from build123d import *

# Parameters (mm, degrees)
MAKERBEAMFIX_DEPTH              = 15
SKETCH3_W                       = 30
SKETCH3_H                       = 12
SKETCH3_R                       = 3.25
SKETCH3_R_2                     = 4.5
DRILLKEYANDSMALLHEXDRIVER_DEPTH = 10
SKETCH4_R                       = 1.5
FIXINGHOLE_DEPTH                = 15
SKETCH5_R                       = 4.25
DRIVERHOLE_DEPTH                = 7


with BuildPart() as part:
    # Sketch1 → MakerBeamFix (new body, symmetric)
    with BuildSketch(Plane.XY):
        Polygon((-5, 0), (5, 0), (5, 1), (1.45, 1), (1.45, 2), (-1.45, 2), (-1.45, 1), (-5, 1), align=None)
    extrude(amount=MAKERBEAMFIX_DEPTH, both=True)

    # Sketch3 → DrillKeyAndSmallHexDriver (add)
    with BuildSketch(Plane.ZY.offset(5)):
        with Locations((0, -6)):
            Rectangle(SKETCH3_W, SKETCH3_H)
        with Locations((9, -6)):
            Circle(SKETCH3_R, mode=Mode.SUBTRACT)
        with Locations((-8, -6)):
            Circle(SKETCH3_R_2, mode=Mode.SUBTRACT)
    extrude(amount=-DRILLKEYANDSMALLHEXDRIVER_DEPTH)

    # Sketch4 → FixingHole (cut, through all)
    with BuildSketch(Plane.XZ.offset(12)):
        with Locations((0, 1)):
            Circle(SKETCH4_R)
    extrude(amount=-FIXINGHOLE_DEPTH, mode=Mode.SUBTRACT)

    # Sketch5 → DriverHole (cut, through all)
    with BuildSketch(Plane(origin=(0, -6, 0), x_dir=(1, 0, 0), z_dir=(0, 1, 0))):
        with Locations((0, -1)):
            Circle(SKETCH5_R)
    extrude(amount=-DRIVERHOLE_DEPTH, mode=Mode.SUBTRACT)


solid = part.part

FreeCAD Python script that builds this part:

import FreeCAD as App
import Part
import Sketcher

V = App.Vector
Q = App.Units.Quantity


def add_polygon(sketch, points):
    """Adds a closed chain of lines whose ends are joined by coincident constraints."""
    first, n = sketch.GeometryCount, len(points)
    for a, b in zip(points, points[1:] + points[:1]):
        sketch.addGeometry(Part.LineSegment(App.Vector(*a, 0), App.Vector(*b, 0)), False)
    for i in range(n):
        sketch.addConstraint(Sketcher.Constraint("Coincident", first + i, 2, first + (i + 1) % n, 1))

doc = App.newDocument("Part")
body = doc.addObject("PartDesign::Body", "Body")

# Sketch on XY plane
sketch1 = doc.addObject("Sketcher::SketchObject", "Sketch")
body.addObject(sketch1)
sketch1.AttachmentSupport = (doc.XY_Plane, [""])
sketch1.MapMode = "FlatFace"
add_polygon(sketch1, [(-5, 0), (5, 0), (5, 1), (1.4, 1), (1.4, 2), (-1.4, 2), (-1.4, 1), (-5, 1)])  # lines 0-7
sketch1.addConstraint([
    Sketcher.Constraint("Horizontal", 0),
    Sketcher.Constraint("Vertical", 1),
    Sketcher.Constraint("Horizontal", 2),
    Sketcher.Constraint("Vertical", 3),
    Sketcher.Constraint("Horizontal", 4),
    Sketcher.Constraint("Vertical", 5),
    Sketcher.Constraint("Horizontal", 6),
    Sketcher.Constraint("Vertical", 7),
    Sketcher.Constraint("Symmetric", 0, 2, 7, 2, -1, 1),
    Sketcher.Constraint("Symmetric", 2, 2, 5, 2, -2),
    Sketcher.Constraint("Equal", 1, 3),
    Sketcher.Constraint("DistanceX", 0, 1, 0, 2, Q("10 mm")),
    Sketcher.Constraint("DistanceY", 1, 1, 1, 2, Q("1 mm")),
    Sketcher.Constraint("DistanceX", 4, 2, 4, 1, Q("2.9 mm")),
])
pad1 = doc.addObject("PartDesign::Pad", "Pad")
body.addObject(pad1)
pad1.Profile = sketch1
pad1.Length = 30
pad1.Midplane = True

# Sketch on YZ plane
sketch2 = doc.addObject("Sketcher::SketchObject", "Sketch001")
body.addObject(sketch2)
sketch2.AttachmentSupport = (doc.YZ_Plane, [""])
sketch2.MapMode = "FlatFace"
sketch2.AttachmentOffset = App.Placement(V(0, 0, -5), App.Rotation())
add_polygon(sketch2, [(0, -15), (-12, -15), (-12, 15), (0, 15)])  # lines 0-3
sketch2.addGeometry(Part.Circle(V(-6, -8, 0), V(0, 0, 1), 4.5), False)  # 4
sketch2.addGeometry(Part.Circle(V(-6, 9, 0), V(0, 0, 1), 3.2), False)  # 5
sketch2.addConstraint([
    Sketcher.Constraint("Horizontal", 0),
    Sketcher.Constraint("Vertical", 1),
    Sketcher.Constraint("Horizontal", 2),
    Sketcher.Constraint("Vertical", 3),
    Sketcher.Constraint("Symmetric", 2, 2, 3, 2, -1, 1),
    Sketcher.Constraint("Vertical", 4, 3, 5, 3),
    Sketcher.Constraint("Diameter", 4, Q("9 mm")),
    Sketcher.Constraint("Diameter", 5, Q("6.5 mm")),
    Sketcher.Constraint("DistanceX", 0, 2, 0, 1, Q("12 mm")),
    Sketcher.Constraint("DistanceY", 1, 1, 1, 2, Q("30 mm")),
    Sketcher.Constraint("DistanceX", 4, 3, -1, 1, Q("6 mm")),
    Sketcher.Constraint("DistanceY", 4, 3, -1, 1, Q("8 mm")),
    Sketcher.Constraint("DistanceY", -1, 1, 5, 3, Q("9 mm")),
])
pad2 = doc.addObject("PartDesign::Pad", "Pad001")
body.addObject(pad2)
pad2.Profile = sketch2
pad2.Length = 10

# Sketch on XZ plane
sketch3 = doc.addObject("Sketcher::SketchObject", "Sketch002")
body.addObject(sketch3)
sketch3.AttachmentSupport = (doc.XZ_Plane, [""])
sketch3.MapMode = "FlatFace"
sketch3.AttachmentOffset = App.Placement(V(0, 0, 12), App.Rotation())
sketch3.addGeometry(Part.Circle(V(0, 1, 0), V(0, 0, 1), 1.5), False)
sketch3.addConstraint([
    Sketcher.Constraint("PointOnObject", 0, 3, -2),
    Sketcher.Constraint("Diameter", 0, Q("3 mm")),
    Sketcher.Constraint("DistanceY", -1, 1, 0, 3, Q("1 mm")),
])
pocket1 = doc.addObject("PartDesign::Pocket", "Pocket")
body.addObject(pocket1)
pocket1.Profile = sketch3
pocket1.Type = "ThroughAll"

# Sketch on XZ plane
sketch4 = doc.addObject("Sketcher::SketchObject", "Sketch003")
body.addObject(sketch4)
sketch4.AttachmentSupport = (doc.XZ_Plane, [""])
sketch4.MapMode = "FlatFace"
sketch4.AttachmentOffset = App.Placement(V(0, 0, 6), App.Rotation())
sketch4.addGeometry(Part.Circle(V(0, 1, 0), V(0, 0, 1), 4.2), False)
sketch4.addConstraint([
    Sketcher.Constraint("PointOnObject", 0, 3, -2),
    Sketcher.Constraint("Diameter", 0, Q("8.5 mm")),
    Sketcher.Constraint("DistanceY", -1, 1, 0, 3, Q("1 mm")),
])
pocket2 = doc.addObject("PartDesign::Pocket", "Pocket001")
body.addObject(pocket2)
pocket2.Profile = sketch4
pocket2.Type = "ThroughAll"
pocket2.Reversed = True

doc.recompute()
